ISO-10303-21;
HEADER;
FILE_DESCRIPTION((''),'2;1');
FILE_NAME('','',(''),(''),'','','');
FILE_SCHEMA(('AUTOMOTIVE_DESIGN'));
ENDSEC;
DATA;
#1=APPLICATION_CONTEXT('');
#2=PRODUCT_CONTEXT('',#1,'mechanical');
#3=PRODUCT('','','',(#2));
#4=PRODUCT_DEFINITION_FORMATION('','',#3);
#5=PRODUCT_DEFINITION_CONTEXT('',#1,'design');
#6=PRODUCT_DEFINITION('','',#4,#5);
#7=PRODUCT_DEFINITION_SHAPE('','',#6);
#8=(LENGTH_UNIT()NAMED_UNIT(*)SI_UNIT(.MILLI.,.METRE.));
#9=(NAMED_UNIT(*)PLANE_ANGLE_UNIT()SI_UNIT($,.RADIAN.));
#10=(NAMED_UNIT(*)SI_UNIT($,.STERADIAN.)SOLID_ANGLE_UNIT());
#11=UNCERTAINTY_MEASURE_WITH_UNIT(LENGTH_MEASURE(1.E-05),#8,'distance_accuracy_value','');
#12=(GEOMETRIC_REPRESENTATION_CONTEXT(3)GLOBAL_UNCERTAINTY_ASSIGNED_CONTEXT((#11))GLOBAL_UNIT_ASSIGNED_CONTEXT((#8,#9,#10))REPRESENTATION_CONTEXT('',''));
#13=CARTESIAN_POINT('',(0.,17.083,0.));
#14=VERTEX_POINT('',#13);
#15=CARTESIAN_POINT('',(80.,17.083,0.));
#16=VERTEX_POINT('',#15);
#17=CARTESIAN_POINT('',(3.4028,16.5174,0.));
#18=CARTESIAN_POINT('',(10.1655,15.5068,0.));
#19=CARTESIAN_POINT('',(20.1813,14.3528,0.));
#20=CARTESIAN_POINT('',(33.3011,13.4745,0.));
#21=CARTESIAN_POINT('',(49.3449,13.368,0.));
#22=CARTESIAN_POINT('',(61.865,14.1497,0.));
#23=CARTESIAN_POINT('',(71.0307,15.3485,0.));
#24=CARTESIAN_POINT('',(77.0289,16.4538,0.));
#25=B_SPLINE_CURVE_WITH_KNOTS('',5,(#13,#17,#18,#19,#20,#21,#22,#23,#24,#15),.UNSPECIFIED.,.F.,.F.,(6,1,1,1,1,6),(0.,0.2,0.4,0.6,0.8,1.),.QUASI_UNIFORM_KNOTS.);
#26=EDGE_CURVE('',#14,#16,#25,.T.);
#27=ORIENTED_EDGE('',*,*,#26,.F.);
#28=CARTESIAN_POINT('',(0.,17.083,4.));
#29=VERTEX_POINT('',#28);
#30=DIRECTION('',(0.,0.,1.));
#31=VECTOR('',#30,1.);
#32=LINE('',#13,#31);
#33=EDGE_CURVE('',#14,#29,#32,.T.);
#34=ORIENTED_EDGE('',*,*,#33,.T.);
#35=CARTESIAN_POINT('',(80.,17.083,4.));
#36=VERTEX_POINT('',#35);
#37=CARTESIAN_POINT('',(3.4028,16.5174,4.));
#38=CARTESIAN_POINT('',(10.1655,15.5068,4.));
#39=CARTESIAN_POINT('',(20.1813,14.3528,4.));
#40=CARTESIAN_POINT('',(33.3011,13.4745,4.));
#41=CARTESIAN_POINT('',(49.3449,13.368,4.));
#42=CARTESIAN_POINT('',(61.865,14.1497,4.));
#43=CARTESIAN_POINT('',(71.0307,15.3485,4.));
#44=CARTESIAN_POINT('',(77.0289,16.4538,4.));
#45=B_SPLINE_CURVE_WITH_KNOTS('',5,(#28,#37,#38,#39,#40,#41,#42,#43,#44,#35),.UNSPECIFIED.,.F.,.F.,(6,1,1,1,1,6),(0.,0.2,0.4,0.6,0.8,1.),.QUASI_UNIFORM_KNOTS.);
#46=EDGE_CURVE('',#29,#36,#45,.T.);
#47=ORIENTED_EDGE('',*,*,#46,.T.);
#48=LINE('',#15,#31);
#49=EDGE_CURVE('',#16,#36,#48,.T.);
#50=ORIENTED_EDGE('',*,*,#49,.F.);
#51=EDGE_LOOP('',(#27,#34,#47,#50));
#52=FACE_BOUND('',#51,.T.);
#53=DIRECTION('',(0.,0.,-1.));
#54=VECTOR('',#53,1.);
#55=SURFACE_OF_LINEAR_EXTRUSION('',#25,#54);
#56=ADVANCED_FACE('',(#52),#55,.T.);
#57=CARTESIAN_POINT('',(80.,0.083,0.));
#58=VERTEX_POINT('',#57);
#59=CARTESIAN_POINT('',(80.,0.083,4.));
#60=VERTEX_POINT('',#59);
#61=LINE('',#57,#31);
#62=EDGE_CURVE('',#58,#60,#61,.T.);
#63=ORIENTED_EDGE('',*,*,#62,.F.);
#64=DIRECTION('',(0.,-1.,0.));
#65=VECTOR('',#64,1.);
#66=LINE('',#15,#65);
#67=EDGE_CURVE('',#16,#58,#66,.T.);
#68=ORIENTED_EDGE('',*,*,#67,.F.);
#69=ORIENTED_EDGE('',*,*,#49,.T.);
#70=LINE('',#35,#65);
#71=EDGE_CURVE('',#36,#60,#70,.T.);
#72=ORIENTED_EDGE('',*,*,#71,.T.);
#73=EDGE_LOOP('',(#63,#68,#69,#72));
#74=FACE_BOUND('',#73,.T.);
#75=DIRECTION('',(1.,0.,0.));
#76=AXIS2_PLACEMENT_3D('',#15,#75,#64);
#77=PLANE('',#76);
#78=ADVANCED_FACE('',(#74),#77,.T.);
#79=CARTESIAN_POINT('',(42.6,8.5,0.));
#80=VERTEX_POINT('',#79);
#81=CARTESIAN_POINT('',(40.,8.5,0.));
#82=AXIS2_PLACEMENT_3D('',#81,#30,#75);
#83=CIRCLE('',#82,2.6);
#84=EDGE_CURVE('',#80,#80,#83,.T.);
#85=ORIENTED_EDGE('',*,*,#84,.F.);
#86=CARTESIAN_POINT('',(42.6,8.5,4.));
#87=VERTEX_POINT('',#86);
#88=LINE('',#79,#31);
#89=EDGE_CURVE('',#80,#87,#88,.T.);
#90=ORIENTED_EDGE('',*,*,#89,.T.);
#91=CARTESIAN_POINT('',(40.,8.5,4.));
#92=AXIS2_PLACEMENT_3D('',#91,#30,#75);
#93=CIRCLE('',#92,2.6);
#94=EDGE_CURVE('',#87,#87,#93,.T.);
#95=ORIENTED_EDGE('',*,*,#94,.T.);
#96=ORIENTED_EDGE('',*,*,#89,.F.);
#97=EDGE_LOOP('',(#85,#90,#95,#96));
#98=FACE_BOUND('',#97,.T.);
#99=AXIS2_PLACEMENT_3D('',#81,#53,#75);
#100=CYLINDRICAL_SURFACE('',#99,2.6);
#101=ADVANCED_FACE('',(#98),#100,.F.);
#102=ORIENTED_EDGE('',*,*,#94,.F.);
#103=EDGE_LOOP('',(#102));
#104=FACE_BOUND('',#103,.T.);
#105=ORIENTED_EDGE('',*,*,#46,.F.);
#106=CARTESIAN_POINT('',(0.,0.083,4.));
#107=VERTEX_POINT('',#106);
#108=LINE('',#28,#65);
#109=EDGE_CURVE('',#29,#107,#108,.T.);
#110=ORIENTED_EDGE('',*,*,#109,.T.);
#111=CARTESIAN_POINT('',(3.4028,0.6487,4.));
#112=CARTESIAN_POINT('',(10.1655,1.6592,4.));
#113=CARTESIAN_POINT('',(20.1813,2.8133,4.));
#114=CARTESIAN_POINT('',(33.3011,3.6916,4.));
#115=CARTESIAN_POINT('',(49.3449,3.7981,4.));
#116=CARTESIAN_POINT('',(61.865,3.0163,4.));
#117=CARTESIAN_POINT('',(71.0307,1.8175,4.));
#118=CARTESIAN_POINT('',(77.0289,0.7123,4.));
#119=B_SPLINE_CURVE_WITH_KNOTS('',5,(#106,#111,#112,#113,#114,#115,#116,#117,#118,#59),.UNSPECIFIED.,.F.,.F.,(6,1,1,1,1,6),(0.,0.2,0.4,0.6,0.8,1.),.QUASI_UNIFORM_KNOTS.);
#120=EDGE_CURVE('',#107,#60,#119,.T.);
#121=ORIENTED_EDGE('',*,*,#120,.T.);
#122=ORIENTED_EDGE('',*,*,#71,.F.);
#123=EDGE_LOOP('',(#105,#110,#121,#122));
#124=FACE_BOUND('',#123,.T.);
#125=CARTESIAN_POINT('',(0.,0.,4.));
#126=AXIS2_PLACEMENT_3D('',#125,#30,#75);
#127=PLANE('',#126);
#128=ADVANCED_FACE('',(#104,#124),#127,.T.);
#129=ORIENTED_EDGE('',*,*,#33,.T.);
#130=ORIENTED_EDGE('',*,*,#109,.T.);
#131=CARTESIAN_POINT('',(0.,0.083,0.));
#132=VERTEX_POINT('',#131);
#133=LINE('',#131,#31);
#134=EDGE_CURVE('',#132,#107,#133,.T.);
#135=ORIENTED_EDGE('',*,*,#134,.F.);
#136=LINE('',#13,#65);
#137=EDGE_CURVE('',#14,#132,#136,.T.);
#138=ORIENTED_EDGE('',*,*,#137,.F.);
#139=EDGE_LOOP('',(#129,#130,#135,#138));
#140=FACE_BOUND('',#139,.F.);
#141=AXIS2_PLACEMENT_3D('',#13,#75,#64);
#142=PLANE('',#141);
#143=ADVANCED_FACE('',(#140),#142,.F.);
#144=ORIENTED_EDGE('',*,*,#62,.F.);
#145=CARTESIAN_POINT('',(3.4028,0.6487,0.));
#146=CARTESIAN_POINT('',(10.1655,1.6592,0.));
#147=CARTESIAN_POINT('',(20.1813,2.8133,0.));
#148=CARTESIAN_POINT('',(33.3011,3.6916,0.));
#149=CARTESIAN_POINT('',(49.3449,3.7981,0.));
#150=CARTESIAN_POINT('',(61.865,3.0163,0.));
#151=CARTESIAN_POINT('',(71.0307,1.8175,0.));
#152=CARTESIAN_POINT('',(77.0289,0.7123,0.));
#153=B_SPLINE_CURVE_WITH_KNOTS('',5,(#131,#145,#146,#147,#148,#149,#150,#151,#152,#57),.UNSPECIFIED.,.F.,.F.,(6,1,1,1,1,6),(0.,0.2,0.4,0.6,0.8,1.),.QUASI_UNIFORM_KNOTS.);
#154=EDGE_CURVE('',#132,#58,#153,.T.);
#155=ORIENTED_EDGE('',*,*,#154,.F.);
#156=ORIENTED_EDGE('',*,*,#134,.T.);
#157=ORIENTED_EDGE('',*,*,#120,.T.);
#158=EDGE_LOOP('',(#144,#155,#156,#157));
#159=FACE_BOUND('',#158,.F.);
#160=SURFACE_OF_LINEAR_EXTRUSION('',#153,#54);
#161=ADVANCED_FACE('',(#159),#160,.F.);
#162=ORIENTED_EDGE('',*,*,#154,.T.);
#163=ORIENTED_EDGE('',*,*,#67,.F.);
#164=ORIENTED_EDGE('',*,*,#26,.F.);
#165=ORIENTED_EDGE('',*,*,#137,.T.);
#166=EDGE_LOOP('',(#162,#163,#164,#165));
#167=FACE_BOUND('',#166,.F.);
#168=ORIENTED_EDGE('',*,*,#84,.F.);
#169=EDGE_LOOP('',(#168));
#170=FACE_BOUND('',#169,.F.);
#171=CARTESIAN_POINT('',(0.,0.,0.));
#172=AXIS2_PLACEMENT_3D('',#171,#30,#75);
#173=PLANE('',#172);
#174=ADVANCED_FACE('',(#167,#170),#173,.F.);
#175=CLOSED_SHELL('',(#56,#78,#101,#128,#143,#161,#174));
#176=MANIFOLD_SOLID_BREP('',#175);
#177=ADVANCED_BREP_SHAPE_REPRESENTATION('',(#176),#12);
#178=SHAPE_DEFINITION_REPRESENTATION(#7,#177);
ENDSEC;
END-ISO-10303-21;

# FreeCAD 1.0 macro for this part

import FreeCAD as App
import Part
import Sketcher

doc = App.newDocument("Part")
body = doc.addObject("PartDesign::Body", "Body")

sketch1 = body.newObject("Sketcher::SketchObject", "Sketch")
sketch1.AttachmentSupport = (doc.getObject("XY_Plane"), [""])
sketch1.MapMode = "FlatFace"
sketch1.addGeometry(Part.LineSegment(App.Vector(0, 17.083, 0), App.Vector(0, 0.083, 0)), False)
sketch1.addGeometry(Part.BSplineCurve([App.Vector(0, 0.083, 0), App.Vector(3.4028, 0.6487, 0), App.Vector(10.1655, 1.6592, 0), App.Vector(20.1813, 2.8133, 0), App.Vector(33.3011, 3.6916, 0), App.Vector(49.3449, 3.7981, 0), App.Vector(61.865, 3.0163, 0), App.Vector(71.0307, 1.8175, 0), App.Vector(77.0289, 0.7123, 0), App.Vector(80, 0.083, 0)], [6, 1, 1, 1, 1, 6], [0, 0.2, 0.4, 0.6, 0.8, 1], False, 5, [1, 1, 1, 1, 1, 1, 1, 1, 1, 1], False), False)
sketch1.addGeometry(Part.LineSegment(App.Vector(80, 0.083, 0), App.Vector(80, 17.083, 0)), False)
sketch1.addGeometry(Part.BSplineCurve([App.Vector(0, 17.083, 0), App.Vector(3.4028, 16.5174, 0), App.Vector(10.1655, 15.5068, 0), App.Vector(20.1813, 14.3528, 0), App.Vector(33.3011, 13.4745, 0), App.Vector(49.3449, 13.368, 0), App.Vector(61.865, 14.1497, 0), App.Vector(71.0307, 15.3485, 0), App.Vector(77.0289, 16.4538, 0), App.Vector(80, 17.083, 0)], [6, 1, 1, 1, 1, 6], [0, 0.2, 0.4, 0.6, 0.8, 1], False, 5, [1, 1, 1, 1, 1, 1, 1, 1, 1, 1], False), False)
sketch1.addGeometry(Part.Circle(App.Vector(40, 8.5, 0), App.Vector(0, 0, 1), 2.6), False)
sketch1.addConstraint(Sketcher.Constraint("Block", 1))
sketch1.addConstraint(Sketcher.Constraint("Block", 3))
sketch1.addConstraint(Sketcher.Constraint("Coincident", 0, 2, 1, 1))
sketch1.addConstraint(Sketcher.Constraint("Coincident", 1, 2, 2, 1))
sketch1.addConstraint(Sketcher.Constraint("Coincident", 2, 2, 3, 2))
sketch1.addConstraint(Sketcher.Constraint("Coincident", 3, 1, 0, 1))
sketch1.addConstraint(Sketcher.Constraint("Diameter", 4, 5.2))
sketch1.addConstraint(Sketcher.Constraint("DistanceX", -1, 1, 4, 3, 40.0))
sketch1.addConstraint(Sketcher.Constraint("DistanceY", -1, 1, 4, 3, 8.5))
pad1 = body.newObject("PartDesign::Pad", "Pad")
pad1.Profile = sketch1
pad1.Length = 4

doc.recompute()
